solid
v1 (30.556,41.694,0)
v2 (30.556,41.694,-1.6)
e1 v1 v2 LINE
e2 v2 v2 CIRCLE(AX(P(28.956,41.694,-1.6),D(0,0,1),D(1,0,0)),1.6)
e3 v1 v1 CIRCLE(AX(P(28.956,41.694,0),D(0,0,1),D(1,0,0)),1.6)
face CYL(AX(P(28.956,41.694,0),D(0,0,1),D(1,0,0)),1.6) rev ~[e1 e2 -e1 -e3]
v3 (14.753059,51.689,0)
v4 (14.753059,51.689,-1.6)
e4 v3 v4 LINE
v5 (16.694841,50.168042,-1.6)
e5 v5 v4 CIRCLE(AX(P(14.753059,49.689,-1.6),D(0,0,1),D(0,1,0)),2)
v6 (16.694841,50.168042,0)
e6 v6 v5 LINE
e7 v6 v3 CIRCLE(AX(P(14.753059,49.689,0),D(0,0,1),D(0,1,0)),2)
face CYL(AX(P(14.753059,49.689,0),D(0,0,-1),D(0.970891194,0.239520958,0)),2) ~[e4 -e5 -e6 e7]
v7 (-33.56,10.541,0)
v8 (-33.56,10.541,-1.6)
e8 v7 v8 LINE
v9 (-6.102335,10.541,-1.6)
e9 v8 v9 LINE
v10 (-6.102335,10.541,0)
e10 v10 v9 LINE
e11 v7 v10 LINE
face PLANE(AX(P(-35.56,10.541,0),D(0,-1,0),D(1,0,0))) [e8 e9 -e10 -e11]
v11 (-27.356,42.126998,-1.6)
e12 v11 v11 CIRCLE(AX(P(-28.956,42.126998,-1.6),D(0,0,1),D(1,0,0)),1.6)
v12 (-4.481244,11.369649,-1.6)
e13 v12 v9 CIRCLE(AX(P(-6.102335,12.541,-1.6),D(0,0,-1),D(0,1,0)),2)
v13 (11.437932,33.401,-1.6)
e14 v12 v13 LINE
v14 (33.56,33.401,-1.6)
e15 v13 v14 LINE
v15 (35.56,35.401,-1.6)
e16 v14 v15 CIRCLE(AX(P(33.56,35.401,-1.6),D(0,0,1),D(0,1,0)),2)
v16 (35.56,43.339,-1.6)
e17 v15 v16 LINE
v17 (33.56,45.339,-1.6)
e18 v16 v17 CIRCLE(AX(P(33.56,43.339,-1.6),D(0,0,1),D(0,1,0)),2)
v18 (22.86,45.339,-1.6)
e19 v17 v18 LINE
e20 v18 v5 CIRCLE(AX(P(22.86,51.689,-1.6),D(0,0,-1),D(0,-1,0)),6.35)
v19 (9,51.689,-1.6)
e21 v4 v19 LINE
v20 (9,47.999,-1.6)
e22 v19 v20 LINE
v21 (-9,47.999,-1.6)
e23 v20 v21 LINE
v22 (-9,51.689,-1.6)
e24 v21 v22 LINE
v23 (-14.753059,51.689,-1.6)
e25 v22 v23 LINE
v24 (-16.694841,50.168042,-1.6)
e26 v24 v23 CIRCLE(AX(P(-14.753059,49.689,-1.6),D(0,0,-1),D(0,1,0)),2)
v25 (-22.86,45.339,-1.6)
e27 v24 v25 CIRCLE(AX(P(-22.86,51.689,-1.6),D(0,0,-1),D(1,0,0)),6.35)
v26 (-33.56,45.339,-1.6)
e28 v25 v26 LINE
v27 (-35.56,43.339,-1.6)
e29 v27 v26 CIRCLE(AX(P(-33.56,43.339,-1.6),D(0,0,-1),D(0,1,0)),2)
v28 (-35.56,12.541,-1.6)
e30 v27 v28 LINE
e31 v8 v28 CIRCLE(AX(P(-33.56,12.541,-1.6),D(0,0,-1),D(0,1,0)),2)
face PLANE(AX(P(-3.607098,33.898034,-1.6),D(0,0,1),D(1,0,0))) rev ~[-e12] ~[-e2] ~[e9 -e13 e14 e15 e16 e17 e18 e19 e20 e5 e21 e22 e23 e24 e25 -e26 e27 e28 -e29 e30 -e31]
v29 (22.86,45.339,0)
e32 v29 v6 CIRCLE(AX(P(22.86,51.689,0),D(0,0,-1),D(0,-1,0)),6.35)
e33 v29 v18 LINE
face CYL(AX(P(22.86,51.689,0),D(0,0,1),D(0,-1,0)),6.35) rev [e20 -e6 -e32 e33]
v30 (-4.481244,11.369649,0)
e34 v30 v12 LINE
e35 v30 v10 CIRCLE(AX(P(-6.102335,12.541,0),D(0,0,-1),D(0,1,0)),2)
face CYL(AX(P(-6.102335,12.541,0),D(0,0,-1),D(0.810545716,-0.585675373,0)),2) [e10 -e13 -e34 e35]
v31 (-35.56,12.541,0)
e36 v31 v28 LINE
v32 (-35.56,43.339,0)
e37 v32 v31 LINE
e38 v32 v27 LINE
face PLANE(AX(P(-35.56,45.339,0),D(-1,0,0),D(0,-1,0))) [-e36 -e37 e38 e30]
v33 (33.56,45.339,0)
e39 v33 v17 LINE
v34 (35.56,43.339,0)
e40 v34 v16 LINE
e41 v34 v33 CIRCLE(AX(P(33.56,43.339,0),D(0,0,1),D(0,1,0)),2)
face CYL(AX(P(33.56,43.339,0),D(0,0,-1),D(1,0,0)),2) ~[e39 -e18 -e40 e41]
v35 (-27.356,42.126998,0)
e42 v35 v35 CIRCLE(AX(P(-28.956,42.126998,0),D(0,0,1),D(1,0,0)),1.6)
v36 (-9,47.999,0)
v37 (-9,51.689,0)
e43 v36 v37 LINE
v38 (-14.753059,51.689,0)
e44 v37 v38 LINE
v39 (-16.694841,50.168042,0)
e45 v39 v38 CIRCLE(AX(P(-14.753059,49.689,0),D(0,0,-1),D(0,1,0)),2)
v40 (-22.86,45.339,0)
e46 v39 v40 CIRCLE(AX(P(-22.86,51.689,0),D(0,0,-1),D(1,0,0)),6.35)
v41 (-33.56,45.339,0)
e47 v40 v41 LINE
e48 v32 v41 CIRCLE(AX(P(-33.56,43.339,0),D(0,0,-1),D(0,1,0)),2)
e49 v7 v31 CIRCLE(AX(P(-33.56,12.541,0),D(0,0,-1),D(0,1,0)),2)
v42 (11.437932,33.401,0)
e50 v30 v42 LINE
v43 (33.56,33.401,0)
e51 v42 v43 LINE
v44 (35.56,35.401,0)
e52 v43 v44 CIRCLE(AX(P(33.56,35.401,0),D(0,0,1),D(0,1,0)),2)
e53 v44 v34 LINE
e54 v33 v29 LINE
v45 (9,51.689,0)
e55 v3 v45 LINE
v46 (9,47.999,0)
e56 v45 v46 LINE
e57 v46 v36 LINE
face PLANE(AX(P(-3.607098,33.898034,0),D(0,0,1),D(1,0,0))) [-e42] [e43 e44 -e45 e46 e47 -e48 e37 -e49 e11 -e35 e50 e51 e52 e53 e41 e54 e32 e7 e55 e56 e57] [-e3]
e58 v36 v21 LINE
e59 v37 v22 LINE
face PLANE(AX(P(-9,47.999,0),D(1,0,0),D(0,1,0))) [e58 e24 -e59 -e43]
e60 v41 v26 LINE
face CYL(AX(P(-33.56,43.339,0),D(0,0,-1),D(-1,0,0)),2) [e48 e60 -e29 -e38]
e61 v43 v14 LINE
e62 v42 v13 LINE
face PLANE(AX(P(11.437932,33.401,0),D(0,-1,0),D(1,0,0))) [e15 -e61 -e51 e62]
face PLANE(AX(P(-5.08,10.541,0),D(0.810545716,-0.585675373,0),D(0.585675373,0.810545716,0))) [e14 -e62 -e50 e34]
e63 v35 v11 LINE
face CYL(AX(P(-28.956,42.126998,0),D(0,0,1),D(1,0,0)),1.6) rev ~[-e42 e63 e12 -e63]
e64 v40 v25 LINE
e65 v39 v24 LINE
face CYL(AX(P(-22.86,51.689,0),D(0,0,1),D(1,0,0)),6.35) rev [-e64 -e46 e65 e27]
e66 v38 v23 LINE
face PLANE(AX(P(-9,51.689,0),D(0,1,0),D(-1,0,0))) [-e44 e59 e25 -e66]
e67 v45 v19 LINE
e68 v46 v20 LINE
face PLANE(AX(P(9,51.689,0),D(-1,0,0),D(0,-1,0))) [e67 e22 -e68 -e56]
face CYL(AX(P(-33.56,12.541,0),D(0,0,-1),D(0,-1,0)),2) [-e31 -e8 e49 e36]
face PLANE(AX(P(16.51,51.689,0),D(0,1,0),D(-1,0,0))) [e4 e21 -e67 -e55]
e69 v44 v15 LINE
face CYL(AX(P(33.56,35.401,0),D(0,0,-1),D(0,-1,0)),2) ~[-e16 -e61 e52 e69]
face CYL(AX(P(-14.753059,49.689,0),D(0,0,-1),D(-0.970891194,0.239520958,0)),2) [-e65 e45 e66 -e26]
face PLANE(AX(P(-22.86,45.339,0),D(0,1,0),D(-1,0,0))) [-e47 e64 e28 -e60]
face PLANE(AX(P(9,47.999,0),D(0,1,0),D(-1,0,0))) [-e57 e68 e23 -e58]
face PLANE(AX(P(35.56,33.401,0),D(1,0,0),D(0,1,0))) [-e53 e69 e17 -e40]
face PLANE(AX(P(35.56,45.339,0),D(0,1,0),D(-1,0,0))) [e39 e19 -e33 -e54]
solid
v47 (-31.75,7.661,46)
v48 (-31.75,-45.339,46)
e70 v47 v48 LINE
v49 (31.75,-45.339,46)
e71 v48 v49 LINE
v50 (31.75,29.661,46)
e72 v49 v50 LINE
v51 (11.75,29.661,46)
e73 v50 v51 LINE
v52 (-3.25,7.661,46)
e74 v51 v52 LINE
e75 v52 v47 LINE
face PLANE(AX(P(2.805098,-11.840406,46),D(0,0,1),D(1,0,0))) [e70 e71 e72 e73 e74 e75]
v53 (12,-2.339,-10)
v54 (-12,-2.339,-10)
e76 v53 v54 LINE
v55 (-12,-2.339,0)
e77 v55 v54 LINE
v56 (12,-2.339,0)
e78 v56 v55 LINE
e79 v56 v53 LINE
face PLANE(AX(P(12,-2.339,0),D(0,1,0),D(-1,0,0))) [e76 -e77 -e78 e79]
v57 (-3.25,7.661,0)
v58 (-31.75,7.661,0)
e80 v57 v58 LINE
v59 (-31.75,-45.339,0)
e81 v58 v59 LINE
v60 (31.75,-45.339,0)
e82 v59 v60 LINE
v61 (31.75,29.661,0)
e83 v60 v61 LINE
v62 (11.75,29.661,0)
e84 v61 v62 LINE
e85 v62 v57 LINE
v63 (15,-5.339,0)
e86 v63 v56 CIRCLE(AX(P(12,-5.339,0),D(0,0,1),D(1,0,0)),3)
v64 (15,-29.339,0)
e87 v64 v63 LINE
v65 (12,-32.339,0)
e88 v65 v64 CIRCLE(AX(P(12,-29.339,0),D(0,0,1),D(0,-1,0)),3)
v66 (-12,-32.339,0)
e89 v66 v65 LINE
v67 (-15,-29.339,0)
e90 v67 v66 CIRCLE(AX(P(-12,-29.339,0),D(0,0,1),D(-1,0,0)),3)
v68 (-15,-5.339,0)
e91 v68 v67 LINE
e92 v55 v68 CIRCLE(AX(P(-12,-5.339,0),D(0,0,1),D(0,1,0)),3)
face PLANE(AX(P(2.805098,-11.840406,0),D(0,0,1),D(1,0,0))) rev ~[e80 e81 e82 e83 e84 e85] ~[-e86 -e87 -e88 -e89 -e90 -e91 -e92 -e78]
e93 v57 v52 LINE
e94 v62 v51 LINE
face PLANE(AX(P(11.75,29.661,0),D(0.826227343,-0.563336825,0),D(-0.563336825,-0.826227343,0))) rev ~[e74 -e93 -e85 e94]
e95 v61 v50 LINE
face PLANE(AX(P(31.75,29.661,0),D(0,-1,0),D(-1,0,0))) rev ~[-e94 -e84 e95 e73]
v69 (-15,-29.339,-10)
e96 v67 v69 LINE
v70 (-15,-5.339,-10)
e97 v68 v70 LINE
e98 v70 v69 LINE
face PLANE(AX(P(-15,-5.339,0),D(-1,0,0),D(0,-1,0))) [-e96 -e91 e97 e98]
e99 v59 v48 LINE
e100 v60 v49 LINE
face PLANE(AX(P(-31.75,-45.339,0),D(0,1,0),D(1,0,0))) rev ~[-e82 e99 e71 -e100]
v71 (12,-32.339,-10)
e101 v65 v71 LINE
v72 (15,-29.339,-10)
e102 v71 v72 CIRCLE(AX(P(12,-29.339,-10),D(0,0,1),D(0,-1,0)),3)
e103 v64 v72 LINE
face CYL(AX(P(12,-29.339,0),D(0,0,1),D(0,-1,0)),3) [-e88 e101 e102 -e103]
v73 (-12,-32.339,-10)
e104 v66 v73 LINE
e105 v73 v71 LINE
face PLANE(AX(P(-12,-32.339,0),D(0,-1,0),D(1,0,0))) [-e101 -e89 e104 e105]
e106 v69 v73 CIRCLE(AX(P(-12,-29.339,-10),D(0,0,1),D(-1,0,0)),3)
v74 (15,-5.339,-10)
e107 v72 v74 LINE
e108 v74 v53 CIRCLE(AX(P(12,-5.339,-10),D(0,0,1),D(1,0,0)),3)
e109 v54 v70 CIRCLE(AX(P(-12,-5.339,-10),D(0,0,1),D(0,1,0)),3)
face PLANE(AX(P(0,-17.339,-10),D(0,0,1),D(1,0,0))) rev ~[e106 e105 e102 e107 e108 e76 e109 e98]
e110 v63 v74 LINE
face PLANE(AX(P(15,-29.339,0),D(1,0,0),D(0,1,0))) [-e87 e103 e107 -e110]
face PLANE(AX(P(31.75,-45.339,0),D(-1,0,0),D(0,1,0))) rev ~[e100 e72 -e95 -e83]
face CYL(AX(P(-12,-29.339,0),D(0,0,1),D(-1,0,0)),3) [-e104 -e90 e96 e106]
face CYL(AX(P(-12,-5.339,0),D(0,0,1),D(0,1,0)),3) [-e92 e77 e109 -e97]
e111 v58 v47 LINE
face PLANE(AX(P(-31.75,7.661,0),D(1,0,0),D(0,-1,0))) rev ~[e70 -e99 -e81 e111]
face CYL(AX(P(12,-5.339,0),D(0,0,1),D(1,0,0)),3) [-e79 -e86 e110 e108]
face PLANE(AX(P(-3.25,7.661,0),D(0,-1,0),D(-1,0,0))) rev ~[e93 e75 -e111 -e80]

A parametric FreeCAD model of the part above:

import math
import FreeCAD as App
import Part
import Sketcher
Q = App.Units.Quantity


def edges_at(feature, points):
    """Names of the edges that pass closest to the given points."""
    edges = feature.Shape.Edges
    near = lambda p: min(range(len(edges)), key=lambda i: edges[i].distToShape(Part.Vertex(*p))[0])
    return sorted({f"Edge{near(p) + 1}" for p in points})


def add_polygon(sketch, points):
    """Adds a closed chain of lines whose ends are joined by coincident constraints."""
    first, n = sketch.GeometryCount, len(points)
    for a, b in zip(points, points[1:] + points[:1]):
        sketch.addGeometry(Part.LineSegment(App.Vector(*a, 0), App.Vector(*b, 0)), False)
    for i in range(n):
        sketch.addConstraint(Sketcher.Constraint("Coincident", first + i, 2, first + (i + 1) % n, 1))

doc = App.newDocument("Part")
body = doc.addObject("PartDesign::Body", "Body")

sketch1 = body.newObject("Sketcher::SketchObject", "Sketch")
sketch1.AttachmentSupport = (doc.getObject("XY_Plane"), [""])
sketch1.MapMode = "FlatFace"
sketch1.addGeometry([
    Part.LineSegment(App.Vector(11.4, 33.4, 0), App.Vector(35.6, 33.4, 0)),
    Part.LineSegment(App.Vector(35.6, 33.4, 0), App.Vector(35.6, 45.3, 0)),
    Part.LineSegment(App.Vector(35.6, 45.3, 0), App.Vector(22.9, 45.3, 0)),
    Part.ArcOfCircle(Part.Circle(App.Vector(22.9, 51.7, 0), App.Vector(0, 0, 1), 6.3), math.radians(180), math.radians(270)),
    Part.LineSegment(App.Vector(16.5, 51.7, 0), App.Vector(9, 51.7, 0)),
    Part.LineSegment(App.Vector(9, 51.7, 0), App.Vector(9, 48, 0)),
    Part.LineSegment(App.Vector(9, 48, 0), App.Vector(-9, 48, 0)),
    Part.LineSegment(App.Vector(-9, 48, 0), App.Vector(-9, 51.7, 0)),
    Part.LineSegment(App.Vector(-9, 51.7, 0), App.Vector(-16.5, 51.7, 0)),
    Part.ArcOfCircle(Part.Circle(App.Vector(-22.9, 51.7, 0), App.Vector(0, 0, 1), 6.3), math.radians(-90), math.radians(0)),
    Part.LineSegment(App.Vector(-22.9, 45.3, 0), App.Vector(-35.6, 45.3, 0)),
    Part.LineSegment(App.Vector(-35.6, 45.3, 0), App.Vector(-35.6, 10.5, 0)),
    Part.LineSegment(App.Vector(-35.6, 10.5, 0), App.Vector(-5.1, 10.5, 0)),
    Part.LineSegment(App.Vector(-5.1, 10.5, 0), App.Vector(11.4, 33.4, 0)),
    Part.Circle(App.Vector(29, 41.7, 0), App.Vector(0, 0, 1), 1.6),
    Part.Circle(App.Vector(-29, 42.1, 0), App.Vector(0, 0, 1), 1.6),
], False)
sketch1.addConstraint([
    Sketcher.Constraint("Coincident", 0, 2, 1, 1),
    Sketcher.Constraint("Coincident", 1, 2, 2, 1),
    Sketcher.Constraint("Tangent", 2, 2, 3, 2),
    Sketcher.Constraint("Coincident", 3, 1, 4, 1),
    Sketcher.Constraint("Coincident", 4, 2, 5, 1),
    Sketcher.Constraint("Coincident", 5, 2, 6, 1),
    Sketcher.Constraint("Coincident", 6, 2, 7, 1),
    Sketcher.Constraint("Coincident", 7, 2, 8, 1),
    Sketcher.Constraint("Coincident", 8, 2, 9, 2),
    Sketcher.Constraint("Tangent", 9, 1, 10, 1),
    Sketcher.Constraint("Coincident", 10, 2, 11, 1),
    Sketcher.Constraint("Coincident", 11, 2, 12, 1),
    Sketcher.Constraint("Coincident", 12, 2, 13, 1),
    Sketcher.Constraint("Coincident", 13, 2, 0, 1),
    Sketcher.Constraint("Horizontal", 0),
    Sketcher.Constraint("Vertical", 1),
    Sketcher.Constraint("Horizontal", 2),
    Sketcher.Constraint("Horizontal", 4),
    Sketcher.Constraint("Vertical", 5),
    Sketcher.Constraint("Horizontal", 6),
    Sketcher.Constraint("Vertical", 7),
    Sketcher.Constraint("Horizontal", 8),
    Sketcher.Constraint("Horizontal", 10),
    Sketcher.Constraint("Vertical", 11),
    Sketcher.Constraint("Horizontal", 12),
    Sketcher.Constraint("Equal", 3, 9),
    Sketcher.Constraint("Equal", 14, 15),
    Sketcher.Constraint("Symmetric", 3, 3, 9, 3, -2),
    Sketcher.Constraint("Symmetric", 4, 2, 7, 2, -2),
    Sketcher.Constraint("Horizontal", 9, 3, 3, 1),
    Sketcher.Constraint("Equal", 2, 10),
    Sketcher.Constraint("Diameter", 14, Q("3.2 mm")),
    Sketcher.Constraint("DistanceX", 6, 2, 6, 1, Q("18 mm")),
    Sketcher.Constraint("Radius", 3, Q("6.35 mm")),
    Sketcher.Constraint("DistanceX", 2, 2, 2, 1, Q("12.7 mm")),
    Sketcher.Constraint("DistanceX", 4, 2, 4, 1, Q("7.51 mm")),
    Sketcher.Constraint("DistanceX", 12, 1, 12, 2, Q("30.48 mm")),
    Sketcher.Constraint("DistanceY", 5, 2, 5, 1, Q("3.69 mm")),
    Sketcher.Constraint("DistanceY", 1, 1, 1, 2, Q("11.938 mm")),
    Sketcher.Constraint("DistanceY", 11, 2, 11, 1, Q("34.798 mm")),
    Sketcher.Constraint("DistanceY", -1, 1, 3, 3, Q("51.689 mm")),
    Sketcher.Constraint("DistanceX", -1, 1, 14, 3, Q("28.956 mm")),
    Sketcher.Constraint("DistanceY", -1, 1, 14, 3, Q("41.694 mm")),
    Sketcher.Constraint("DistanceX", 15, 3, -1, 1, Q("28.956 mm")),
    Sketcher.Constraint("Distance", 13, Q("28.203221 mm")),
    Sketcher.Constraint("DistanceY", -1, 1, 15, 3, Q("42.126998 mm")),
])
pad1 = body.newObject("PartDesign::Pad", "Pad")
pad1.Profile = sketch1
pad1.Length = 1.6
pad1.Reversed = True

sketch2 = body.newObject("Sketcher::SketchObject", "Sketch001")
sketch2.AttachmentSupport = (doc.getObject("XY_Plane"), [""])
sketch2.MapMode = "FlatFace"
sketch2.addGeometry([
    Part.LineSegment(App.Vector(-12, -32.3, 0), App.Vector(12, -32.3, 0)),
    Part.ArcOfCircle(Part.Circle(App.Vector(12, -29.3, 0), App.Vector(0, 0, 1), 3), math.radians(-90), math.radians(0)),
    Part.LineSegment(App.Vector(15, -29.3, 0), App.Vector(15, -5.3, 0)),
    Part.ArcOfCircle(Part.Circle(App.Vector(12, -5.3, 0), App.Vector(0, 0, 1), 3), math.radians(0), math.radians(90)),
    Part.LineSegment(App.Vector(12, -2.3, 0), App.Vector(-12, -2.3, 0)),
    Part.ArcOfCircle(Part.Circle(App.Vector(-12, -5.3, 0), App.Vector(0, 0, 1), 3), math.radians(90), math.radians(180)),
    Part.LineSegment(App.Vector(-15, -5.3, 0), App.Vector(-15, -29.3, 0)),
    Part.ArcOfCircle(Part.Circle(App.Vector(-12, -29.3, 0), App.Vector(0, 0, 1), 3), math.radians(180), math.radians(270)),
], False)
sketch2.addConstraint([
    Sketcher.Constraint("Tangent", 0, 2, 1, 1),
    Sketcher.Constraint("Tangent", 1, 2, 2, 1),
    Sketcher.Constraint("Tangent", 2, 2, 3, 1),
    Sketcher.Constraint("Tangent", 3, 2, 4, 1),
    Sketcher.Constraint("Tangent", 4, 2, 5, 1),
    Sketcher.Constraint("Tangent", 5, 2, 6, 1),
    Sketcher.Constraint("Tangent", 6, 2, 7, 1),
    Sketcher.Constraint("Tangent", 7, 2, 0, 1),
    Sketcher.Constraint("Horizontal", 0),
    Sketcher.Constraint("Vertical", 2),
    Sketcher.Constraint("Horizontal", 4),
    Sketcher.Constraint("Vertical", 6),
    Sketcher.Constraint("Equal", 1, 3),
    Sketcher.Constraint("Equal", 3, 5),
    Sketcher.Constraint("Equal", 5, 7),
    Sketcher.Constraint("Equal", 4, 2),
    Sketcher.Constraint("Radius", 1, Q("3 mm")),
    Sketcher.Constraint("DistanceX", 0, 1, 0, 2, Q("24 mm")),
    Sketcher.Constraint("DistanceX", -1, 1, 1, 3, Q("12 mm")),
    Sketcher.Constraint("DistanceY", 1, 3, -1, 1, Q("29.339 mm")),
])
pocket1 = body.newObject("PartDesign::Pocket", "Pocket")
pocket1.Profile = sketch2
pocket1.Length = 19.05

sketch3 = body.newObject("Sketcher::SketchObject", "Sketch002")
sketch3.AttachmentSupport = (doc.getObject("XY_Plane"), [""])
sketch3.MapMode = "FlatFace"
add_polygon(sketch3, [(-31.8, 7.7), (-31.8, -45.3), (31.8, -45.3), (31.8, 29.7), (11.8, 29.7), (-3.2, 7.7)])
sketch3.addGeometry(Part.LineSegment(App.Vector(15, -5.3, 0), App.Vector(15, -29.3, 0)), False)
sketch3.addGeometry(Part.ArcOfCircle(Part.Circle(App.Vector(12, -29.3, 0), App.Vector(0, 0, 1), 3), math.radians(-90), math.radians(0)), False)
sketch3.addGeometry(Part.LineSegment(App.Vector(12, -32.3, 0), App.Vector(-12, -32.3, 0)), False)
sketch3.addGeometry(Part.ArcOfCircle(Part.Circle(App.Vector(-12, -29.3, 0), App.Vector(0, 0, 1), 3), math.radians(180), math.radians(270)), False)
sketch3.addGeometry(Part.LineSegment(App.Vector(-15, -29.3, 0), App.Vector(-15, -5.3, 0)), False)
sketch3.addGeometry(Part.ArcOfCircle(Part.Circle(App.Vector(-12, -5.3, 0), App.Vector(0, 0, 1), 3), math.radians(90), math.radians(180)), False)
sketch3.addGeometry(Part.LineSegment(App.Vector(-12, -2.3, 0), App.Vector(12, -2.3, 0)), False)
sketch3.addGeometry(Part.ArcOfCircle(Part.Circle(App.Vector(12, -5.3, 0), App.Vector(0, 0, 1), 3), math.radians(0), math.radians(90)), False)
sketch3.addConstraint([
    Sketcher.Constraint("Tangent", 6, 2, 7, 2),
    Sketcher.Constraint("Tangent", 7, 1, 8, 1),
    Sketcher.Constraint("Tangent", 8, 2, 9, 2),
    Sketcher.Constraint("Tangent", 9, 1, 10, 1),
    Sketcher.Constraint("Tangent", 10, 2, 11, 2),
    Sketcher.Constraint("Tangent", 11, 1, 12, 1),
    Sketcher.Constraint("Tangent", 12, 2, 13, 2),
    Sketcher.Constraint("Tangent", 13, 1, 6, 1),
    Sketcher.Constraint("Vertical", 0),
    Sketcher.Constraint("Horizontal", 1),
    Sketcher.Constraint("Vertical", 2),
    Sketcher.Constraint("Horizontal", 3),
    Sketcher.Constraint("Horizontal", 5),
    Sketcher.Constraint("Vertical", 6),
    Sketcher.Constraint("Horizontal", 8),
    Sketcher.Constraint("Vertical", 10),
    Sketcher.Constraint("Horizontal", 12),
    Sketcher.Constraint("Equal", 7, 9),
    Sketcher.Constraint("Equal", 9, 11),
    Sketcher.Constraint("Equal", 11, 13),
    Sketcher.Constraint("Equal", 12, 6),
    Sketcher.Constraint("Radius", 7, Q("3 mm")),
    Sketcher.Constraint("DistanceX", 3, 2, 3, 1, Q("20 mm")),
    Sketcher.Constraint("DistanceX", 8, 2, 8, 1, Q("24 mm")),
    Sketcher.Constraint("DistanceY", 0, 2, 0, 1, Q("53 mm")),
    Sketcher.Constraint("DistanceY", 2, 1, 2, 2, Q("75 mm")),
    Sketcher.Constraint("DistanceX", 1, 1, 1, 2, Q("63.5 mm")),
    Sketcher.Constraint("DistanceX", 5, 2, 5, 1, Q("28.5 mm")),
    Sketcher.Constraint("DistanceX", -1, 1, 7, 3, Q("12 mm")),
    Sketcher.Constraint("DistanceY", 0, 2, 9, 3, Q("16 mm")),
    Sketcher.Constraint("DistanceX", 0, 2, -1, 1, Q("31.75 mm")),
    Sketcher.Constraint("DistanceY", 7, 3, -1, 1, Q("29.339 mm")),
])
pocket2 = body.newObject("PartDesign::Pocket", "Pocket001")
pocket2.Profile = sketch3
pocket2.Length = 1.016
doc.recompute()

fillet = body.newObject("PartDesign::Fillet", "Fillet")
fillet.Base = (pocket2, edges_at(pocket2, [
    (-16.51, 51.689, -0.8),
    (-35.56, 45.339, -0.8),
    (-35.56, 10.541, -0.8),
    (-5.08, 10.541, -0.8),
    (35.56, 33.401, -0.8),
    (16.51, 51.689, -0.8),
    (35.56, 45.339, -0.8),
]))
fillet.Radius = 2
body2 = doc.addObject("PartDesign::Body", "Body001")

sketch4 = body2.newObject("Sketcher::SketchObject", "Sketch003")
sketch4.AttachmentSupport = (doc.getObject("XY_Plane001"), [""])
sketch4.MapMode = "FlatFace"
add_polygon(sketch4, [(-32, 8), (-32, -45), (32, -45), (32, 30), (12, 30), (-3, 8)])
sketch4.addConstraint([
    Sketcher.Constraint("Vertical", 0),
    Sketcher.Constraint("Horizontal", 1),
    Sketcher.Constraint("Vertical", 2),
    Sketcher.Constraint("Horizontal", 3),
    Sketcher.Constraint("Horizontal", 5),
    Sketcher.Constraint("DistanceX", 3, 2, 3, 1, Q("20 mm")),
    Sketcher.Constraint("DistanceY", 0, 2, 0, 1, Q("53 mm")),
    Sketcher.Constraint("DistanceY", 2, 1, 2, 2, Q("75 mm")),
    Sketcher.Constraint("DistanceX", 1, 1, 1, 2, Q("63.5 mm")),
    Sketcher.Constraint("DistanceX", 5, 2, 5, 1, Q("28.5 mm")),
    Sketcher.Constraint("DistanceX", 0, 2, -1, 1, Q("31.75 mm")),
    Sketcher.Constraint("DistanceY", 0, 2, -1, 1, Q("45.339 mm")),
])
pad2 = body2.newObject("PartDesign::Pad", "Pad001")
pad2.Profile = sketch4
pad2.Length = 46

sketch5 = body2.newObject("Sketcher::SketchObject", "Sketch004")
sketch5.AttachmentSupport = (doc.getObject("XY_Plane001"), [""])
sketch5.MapMode = "FlatFace"
sketch5.addGeometry([
    Part.LineSegment(App.Vector(-12, -32.3, 0), App.Vector(12, -32.3, 0)),
    Part.ArcOfCircle(Part.Circle(App.Vector(12, -29.3, 0), App.Vector(0, 0, 1), 3), math.radians(-90), math.radians(0)),
    Part.LineSegment(App.Vector(15, -29.3, 0), App.Vector(15, -5.3, 0)),
    Part.ArcOfCircle(Part.Circle(App.Vector(12, -5.3, 0), App.Vector(0, 0, 1), 3), math.radians(0), math.radians(90)),
    Part.LineSegment(App.Vector(12, -2.3, 0), App.Vector(-12, -2.3, 0)),
    Part.ArcOfCircle(Part.Circle(App.Vector(-12, -5.3, 0), App.Vector(0, 0, 1), 3), math.radians(90), math.radians(180)),
    Part.LineSegment(App.Vector(-15, -5.3, 0), App.Vector(-15, -29.3, 0)),
    Part.ArcOfCircle(Part.Circle(App.Vector(-12, -29.3, 0), App.Vector(0, 0, 1), 3), math.radians(180), math.radians(270)),
], False)
sketch5.addConstraint([
    Sketcher.Constraint("Tangent", 0, 2, 1, 1),
    Sketcher.Constraint("Tangent", 1, 2, 2, 1),
    Sketcher.Constraint("Tangent", 2, 2, 3, 1),
    Sketcher.Constraint("Tangent", 3, 2, 4, 1),
    Sketcher.Constraint("Tangent", 4, 2, 5, 1),
    Sketcher.Constraint("Tangent", 5, 2, 6, 1),
    Sketcher.Constraint("Tangent", 6, 2, 7, 1),
    Sketcher.Constraint("Tangent", 7, 2, 0, 1),
    Sketcher.Constraint("Horizontal", 0),
    Sketcher.Constraint("Vertical", 2),
    Sketcher.Constraint("Horizontal", 4),
    Sketcher.Constraint("Vertical", 6),
    Sketcher.Constraint("Equal", 1, 3),
    Sketcher.Constraint("Equal", 3, 5),
    Sketcher.Constraint("Equal", 5, 7),
    Sketcher.Constraint("Equal", 4, 2),
    Sketcher.Constraint("Radius", 1, Q("3 mm")),
    Sketcher.Constraint("DistanceX", 0, 1, 0, 2, Q("24 mm")),
    Sketcher.Constraint("DistanceX", -1, 1, 1, 3, Q("12 mm")),
    Sketcher.Constraint("DistanceY", 1, 3, -1, 1, Q("29.339 mm")),
])
pad3 = body2.newObject("PartDesign::Pad", "Pad002")
pad3.Profile = sketch5
pad3.Length = 10
pad3.Reversed = True

doc.recompute()
